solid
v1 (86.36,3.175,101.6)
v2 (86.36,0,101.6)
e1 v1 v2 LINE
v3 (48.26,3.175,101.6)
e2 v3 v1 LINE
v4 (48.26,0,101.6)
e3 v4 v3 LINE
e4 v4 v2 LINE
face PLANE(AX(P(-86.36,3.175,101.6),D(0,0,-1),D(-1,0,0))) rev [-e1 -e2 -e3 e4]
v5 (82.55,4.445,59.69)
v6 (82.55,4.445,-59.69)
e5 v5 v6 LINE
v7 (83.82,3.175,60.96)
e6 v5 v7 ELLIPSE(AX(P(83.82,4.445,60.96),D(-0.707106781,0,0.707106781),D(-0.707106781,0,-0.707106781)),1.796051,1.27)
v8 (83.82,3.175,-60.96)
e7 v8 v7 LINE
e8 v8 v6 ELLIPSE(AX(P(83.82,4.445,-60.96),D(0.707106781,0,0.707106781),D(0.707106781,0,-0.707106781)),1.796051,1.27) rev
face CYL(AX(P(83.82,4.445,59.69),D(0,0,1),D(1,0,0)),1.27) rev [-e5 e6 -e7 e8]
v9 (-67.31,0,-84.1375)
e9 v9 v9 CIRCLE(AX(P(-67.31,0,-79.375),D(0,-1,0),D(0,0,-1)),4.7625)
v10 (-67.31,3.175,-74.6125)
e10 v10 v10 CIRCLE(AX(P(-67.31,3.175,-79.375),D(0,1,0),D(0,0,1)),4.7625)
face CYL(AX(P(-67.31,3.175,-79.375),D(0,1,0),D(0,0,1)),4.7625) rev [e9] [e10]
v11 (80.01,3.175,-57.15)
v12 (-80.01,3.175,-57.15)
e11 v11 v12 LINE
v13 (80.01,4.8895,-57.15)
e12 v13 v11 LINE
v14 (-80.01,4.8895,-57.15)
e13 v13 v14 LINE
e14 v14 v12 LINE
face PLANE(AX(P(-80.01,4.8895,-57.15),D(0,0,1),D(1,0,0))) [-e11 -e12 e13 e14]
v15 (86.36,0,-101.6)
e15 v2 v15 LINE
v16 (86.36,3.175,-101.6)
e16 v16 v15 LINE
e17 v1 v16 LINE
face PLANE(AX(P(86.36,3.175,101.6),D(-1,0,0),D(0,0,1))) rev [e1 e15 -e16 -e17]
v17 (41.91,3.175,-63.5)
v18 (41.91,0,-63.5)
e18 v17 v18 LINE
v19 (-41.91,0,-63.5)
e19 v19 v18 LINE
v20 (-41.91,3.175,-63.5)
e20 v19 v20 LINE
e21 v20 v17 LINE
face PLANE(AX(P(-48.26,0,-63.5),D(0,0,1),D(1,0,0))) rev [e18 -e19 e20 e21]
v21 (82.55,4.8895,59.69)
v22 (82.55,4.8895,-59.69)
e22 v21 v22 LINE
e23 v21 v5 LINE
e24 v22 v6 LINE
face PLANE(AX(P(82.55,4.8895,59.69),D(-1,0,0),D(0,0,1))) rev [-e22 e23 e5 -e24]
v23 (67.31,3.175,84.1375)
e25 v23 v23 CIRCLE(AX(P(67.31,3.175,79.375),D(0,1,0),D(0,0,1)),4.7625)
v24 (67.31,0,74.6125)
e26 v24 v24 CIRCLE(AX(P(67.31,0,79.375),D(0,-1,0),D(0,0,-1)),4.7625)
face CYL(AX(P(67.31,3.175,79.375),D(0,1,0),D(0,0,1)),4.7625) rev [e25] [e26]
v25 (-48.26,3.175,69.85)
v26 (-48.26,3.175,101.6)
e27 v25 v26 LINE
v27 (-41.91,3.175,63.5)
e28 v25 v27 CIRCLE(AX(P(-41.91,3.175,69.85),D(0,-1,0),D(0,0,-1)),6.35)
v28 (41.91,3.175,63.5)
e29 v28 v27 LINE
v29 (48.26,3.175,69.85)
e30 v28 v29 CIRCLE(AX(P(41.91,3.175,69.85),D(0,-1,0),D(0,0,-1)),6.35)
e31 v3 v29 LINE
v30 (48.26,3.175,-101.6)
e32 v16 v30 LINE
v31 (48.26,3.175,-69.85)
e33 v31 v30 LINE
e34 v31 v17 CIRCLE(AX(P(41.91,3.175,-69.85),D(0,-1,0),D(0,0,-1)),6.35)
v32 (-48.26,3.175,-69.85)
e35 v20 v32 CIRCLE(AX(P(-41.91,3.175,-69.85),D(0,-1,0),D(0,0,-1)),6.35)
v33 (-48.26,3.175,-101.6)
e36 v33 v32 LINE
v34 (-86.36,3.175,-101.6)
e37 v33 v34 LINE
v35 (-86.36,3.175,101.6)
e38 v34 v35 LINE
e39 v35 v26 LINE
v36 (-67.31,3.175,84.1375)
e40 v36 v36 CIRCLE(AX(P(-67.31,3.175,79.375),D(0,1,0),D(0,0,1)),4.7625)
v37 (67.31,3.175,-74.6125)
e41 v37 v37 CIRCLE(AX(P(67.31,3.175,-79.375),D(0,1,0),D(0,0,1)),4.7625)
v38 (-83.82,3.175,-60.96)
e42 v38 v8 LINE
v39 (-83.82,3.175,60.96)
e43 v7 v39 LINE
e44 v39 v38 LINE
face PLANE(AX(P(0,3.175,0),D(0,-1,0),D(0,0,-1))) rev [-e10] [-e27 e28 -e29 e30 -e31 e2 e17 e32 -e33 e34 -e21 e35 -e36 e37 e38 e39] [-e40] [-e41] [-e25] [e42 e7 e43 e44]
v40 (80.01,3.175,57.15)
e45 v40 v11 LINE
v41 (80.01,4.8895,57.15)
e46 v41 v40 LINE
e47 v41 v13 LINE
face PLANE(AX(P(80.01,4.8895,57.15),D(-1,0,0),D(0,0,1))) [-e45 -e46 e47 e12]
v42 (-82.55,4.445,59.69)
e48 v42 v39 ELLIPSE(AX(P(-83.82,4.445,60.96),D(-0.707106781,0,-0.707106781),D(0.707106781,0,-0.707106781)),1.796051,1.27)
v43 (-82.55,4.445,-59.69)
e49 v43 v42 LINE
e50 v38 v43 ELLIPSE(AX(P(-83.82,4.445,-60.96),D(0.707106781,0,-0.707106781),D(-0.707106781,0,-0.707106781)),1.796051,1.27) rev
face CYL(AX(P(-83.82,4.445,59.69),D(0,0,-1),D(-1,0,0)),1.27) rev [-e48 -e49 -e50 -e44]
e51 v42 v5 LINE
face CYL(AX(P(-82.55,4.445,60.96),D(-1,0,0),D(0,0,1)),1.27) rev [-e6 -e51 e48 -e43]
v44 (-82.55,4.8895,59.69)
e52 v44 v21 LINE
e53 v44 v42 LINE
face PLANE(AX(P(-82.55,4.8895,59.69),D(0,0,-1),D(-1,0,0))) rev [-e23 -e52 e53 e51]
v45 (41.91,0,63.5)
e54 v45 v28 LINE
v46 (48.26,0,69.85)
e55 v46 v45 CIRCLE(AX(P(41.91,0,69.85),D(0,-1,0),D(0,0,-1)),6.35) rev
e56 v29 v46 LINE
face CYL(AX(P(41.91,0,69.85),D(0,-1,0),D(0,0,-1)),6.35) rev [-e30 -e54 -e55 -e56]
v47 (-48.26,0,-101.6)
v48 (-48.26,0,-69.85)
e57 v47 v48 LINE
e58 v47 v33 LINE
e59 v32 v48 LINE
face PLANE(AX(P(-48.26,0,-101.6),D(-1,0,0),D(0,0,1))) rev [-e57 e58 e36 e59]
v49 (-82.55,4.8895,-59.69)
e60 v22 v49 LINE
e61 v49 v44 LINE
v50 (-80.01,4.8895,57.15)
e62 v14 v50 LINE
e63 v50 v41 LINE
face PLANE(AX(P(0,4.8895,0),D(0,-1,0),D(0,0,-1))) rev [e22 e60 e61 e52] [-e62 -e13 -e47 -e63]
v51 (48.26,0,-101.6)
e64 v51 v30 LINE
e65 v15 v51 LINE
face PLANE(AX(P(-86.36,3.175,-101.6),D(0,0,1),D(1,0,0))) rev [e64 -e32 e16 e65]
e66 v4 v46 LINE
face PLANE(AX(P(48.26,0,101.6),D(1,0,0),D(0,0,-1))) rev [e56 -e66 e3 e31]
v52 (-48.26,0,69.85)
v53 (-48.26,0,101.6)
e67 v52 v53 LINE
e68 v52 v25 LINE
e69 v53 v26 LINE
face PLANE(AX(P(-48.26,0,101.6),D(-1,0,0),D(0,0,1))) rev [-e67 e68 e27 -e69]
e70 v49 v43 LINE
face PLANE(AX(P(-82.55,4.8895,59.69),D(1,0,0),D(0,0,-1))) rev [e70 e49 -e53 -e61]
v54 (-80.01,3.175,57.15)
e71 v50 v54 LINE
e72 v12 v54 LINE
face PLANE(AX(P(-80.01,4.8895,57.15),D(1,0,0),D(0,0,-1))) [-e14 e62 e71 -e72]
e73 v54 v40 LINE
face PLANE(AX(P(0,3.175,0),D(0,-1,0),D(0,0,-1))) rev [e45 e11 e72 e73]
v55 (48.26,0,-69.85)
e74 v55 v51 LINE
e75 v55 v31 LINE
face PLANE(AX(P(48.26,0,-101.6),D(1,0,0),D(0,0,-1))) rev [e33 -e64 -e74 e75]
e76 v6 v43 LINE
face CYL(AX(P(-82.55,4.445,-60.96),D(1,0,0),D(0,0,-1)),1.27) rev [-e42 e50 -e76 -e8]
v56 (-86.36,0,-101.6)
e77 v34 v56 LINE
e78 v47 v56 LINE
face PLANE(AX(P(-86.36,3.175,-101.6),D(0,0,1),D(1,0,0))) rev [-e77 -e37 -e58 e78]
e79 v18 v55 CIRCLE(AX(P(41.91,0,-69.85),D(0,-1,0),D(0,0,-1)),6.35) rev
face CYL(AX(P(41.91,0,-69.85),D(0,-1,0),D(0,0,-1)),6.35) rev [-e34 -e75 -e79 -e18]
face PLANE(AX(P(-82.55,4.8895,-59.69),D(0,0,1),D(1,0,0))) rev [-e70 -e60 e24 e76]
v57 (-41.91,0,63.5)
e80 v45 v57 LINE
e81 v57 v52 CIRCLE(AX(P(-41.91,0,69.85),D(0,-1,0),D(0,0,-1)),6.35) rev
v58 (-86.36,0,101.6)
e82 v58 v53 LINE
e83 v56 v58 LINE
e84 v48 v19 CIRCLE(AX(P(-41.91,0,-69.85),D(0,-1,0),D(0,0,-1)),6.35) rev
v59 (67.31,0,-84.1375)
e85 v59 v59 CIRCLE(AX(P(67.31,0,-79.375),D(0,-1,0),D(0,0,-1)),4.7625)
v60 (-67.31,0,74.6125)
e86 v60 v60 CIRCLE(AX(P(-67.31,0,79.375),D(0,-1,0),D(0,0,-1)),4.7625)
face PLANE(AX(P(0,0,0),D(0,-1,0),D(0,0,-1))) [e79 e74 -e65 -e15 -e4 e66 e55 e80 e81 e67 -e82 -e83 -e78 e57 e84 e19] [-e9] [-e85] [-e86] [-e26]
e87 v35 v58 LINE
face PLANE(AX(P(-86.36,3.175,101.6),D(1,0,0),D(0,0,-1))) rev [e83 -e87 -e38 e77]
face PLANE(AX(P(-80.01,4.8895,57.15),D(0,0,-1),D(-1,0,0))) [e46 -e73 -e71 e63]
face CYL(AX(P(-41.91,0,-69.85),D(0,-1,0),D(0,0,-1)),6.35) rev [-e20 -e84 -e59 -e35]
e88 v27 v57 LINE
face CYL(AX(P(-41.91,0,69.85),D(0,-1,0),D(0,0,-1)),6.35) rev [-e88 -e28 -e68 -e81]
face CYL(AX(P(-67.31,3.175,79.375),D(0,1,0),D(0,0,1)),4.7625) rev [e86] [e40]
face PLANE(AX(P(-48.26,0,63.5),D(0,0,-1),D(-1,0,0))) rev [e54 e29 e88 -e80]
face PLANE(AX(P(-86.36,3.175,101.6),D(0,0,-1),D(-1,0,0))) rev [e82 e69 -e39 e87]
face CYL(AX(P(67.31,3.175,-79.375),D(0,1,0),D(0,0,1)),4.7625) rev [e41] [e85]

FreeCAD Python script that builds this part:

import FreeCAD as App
import Part
import Sketcher
from FreeCAD import Vector
Q = App.Units.Quantity


def edges_at(feature, points):
    """Names of the edges that pass closest to the given points."""
    edges = feature.Shape.Edges
    near = lambda p: min(range(len(edges)), key=lambda i: edges[i].distToShape(Part.Vertex(*p))[0])
    return sorted({f"Edge{near(p) + 1}" for p in points})


def add_polygon(sketch, points):
    """Adds a closed chain of lines whose ends are joined by coincident constraints."""
    first, n = sketch.GeometryCount, len(points)
    for a, b in zip(points, points[1:] + points[:1]):
        sketch.addGeometry(Part.LineSegment(App.Vector(*a, 0), App.Vector(*b, 0)), False)
    for i in range(n):
        sketch.addConstraint(Sketcher.Constraint("Coincident", first + i, 2, first + (i + 1) % n, 1))

doc = App.newDocument("Part")
body = doc.addObject("PartDesign::Body", "Body")

# Sketch on XZ plane
sketch1 = body.newObject("Sketcher::SketchObject", "Sketch")
sketch1.AttachmentSupport = (doc.getObject("XZ_Plane"), [""])
sketch1.MapMode = "FlatFace"
add_polygon(sketch1, [(-86, -102), (-86, 102), (86, 102), (86, -102)])  # lines 0-3
sketch1.addConstraint([
    Sketcher.Constraint("Vertical", 0),
    Sketcher.Constraint("Horizontal", 1),
    Sketcher.Constraint("Vertical", 2),
    Sketcher.Constraint("Horizontal", 3),
    Sketcher.Constraint("Symmetric", 0, 2, 2, 2, -1, 1),
    Sketcher.Constraint("DistanceY", 0, 1, 0, 2, Q("8 in")),
    Sketcher.Constraint("DistanceX", 1, 1, 1, 2, Q("6.8 in")),
])
pad1 = body.newObject("PartDesign::Pad", "Pad")
pad1.Profile = sketch1
pad1.Length = Q("0.125 in")
pad1.Reversed = True

# Sketch on XZ plane
sketch2 = body.newObject("Sketcher::SketchObject", "Sketch001")
sketch2.AttachmentSupport = (doc.getObject("XZ_Plane"), [""])
sketch2.MapMode = "FlatFace"
sketch2.AttachmentOffset = App.Placement(Vector(0, 0, -0.125 * 25.4), App.Rotation())
add_polygon(sketch2, [(-48, -102), (-48, -64), (48, -64), (48, -102)])  # lines 0-3
add_polygon(sketch2, [(-48, 64), (-48, 102), (48, 102), (48, 64)])  # lines 4-7
sketch2.addConstraint([
    Sketcher.Constraint("Vertical", 0),
    Sketcher.Constraint("Horizontal", 1),
    Sketcher.Constraint("Vertical", 2),
    Sketcher.Constraint("Horizontal", 3),
    Sketcher.Constraint("Vertical", 4),
    Sketcher.Constraint("Horizontal", 5),
    Sketcher.Constraint("Vertical", 6),
    Sketcher.Constraint("Horizontal", 7),
    Sketcher.Constraint("Symmetric", 2, 2, 4, 2, -1, 1),
    Sketcher.Constraint("Symmetric", 0, 2, 6, 2, -1, 1),
    Sketcher.Constraint("Vertical", 3, 2, 4, 2),
    Sketcher.Constraint("DistanceX", 1, 1, 1, 2, Q("3.8 in")),
    Sketcher.Constraint("DistanceY", 0, 1, 0, 2, Q("1.5 in")),
    Sketcher.Constraint("DistanceY", 2, 2, -1, 1, Q("4 in")),
])
pocket1 = body.newObject("PartDesign::Pocket", "Pocket")
pocket1.Profile = sketch2
pocket1.Type = "ThroughAll"
pocket1.Reversed = True
doc.recompute()

fillet = body.newObject("PartDesign::Fillet", "Fillet")
fillet.Base = (pocket1, edges_at(pocket1, [
    (-48.26, 1.587, -63.5),
    (48.26, 1.587, -63.5),
    (-48.26, 1.587, 63.5),
    (48.26, 1.587, 63.5),
]))
fillet.Radius = Q("0.25 in")

# Sketch on XZ plane
sketch3 = body.newObject("Sketcher::SketchObject", "Sketch002")
sketch3.AttachmentSupport = (doc.getObject("XZ_Plane"), [""])
sketch3.MapMode = "FlatFace"
sketch3.AttachmentOffset = App.Placement(Vector(0, 0, -0.125 * 25.4), App.Rotation())
add_polygon(sketch3, [(-83, -60), (-83, 60), (83, 60), (83, -60)])  # lines 0-3
add_polygon(sketch3, [(80, 57), (-80, 57), (-80, -57), (80, -57)])  # lines 4-7
sketch3.addConstraint([
    Sketcher.Constraint("Vertical", 0),
    Sketcher.Constraint("Horizontal", 1),
    Sketcher.Constraint("Vertical", 2),
    Sketcher.Constraint("Horizontal", 3),
    Sketcher.Constraint("Horizontal", 4),
    Sketcher.Constraint("Vertical", 5),
    Sketcher.Constraint("Horizontal", 6),
    Sketcher.Constraint("Vertical", 7),
    Sketcher.Constraint("Symmetric", 0, 2, 2, 2, -1, 1),
    Sketcher.Constraint("Symmetric", 4, 2, 6, 2, -1, 1),
    Sketcher.Constraint("DistanceX", 1, 1, 1, 2, Q("6.5 in")),
    Sketcher.Constraint("DistanceX", 4, 2, 4, 1, Q("6.3 in")),
    Sketcher.Constraint("DistanceY", 0, 1, 0, 2, Q("4.7 in")),
    Sketcher.Constraint("DistanceY", 5, 2, 5, 1, Q("4.5 in")),
])
pad2 = body.newObject("PartDesign::Pad", "Pad001")
pad2.Profile = sketch3
pad2.Length = Q("0.0675 in")
pad2.Reversed = True
doc.recompute()

fillet2 = body.newObject("PartDesign::Fillet", "Fillet001")
fillet2.Base = (pad2, edges_at(pad2, [
    (82.55, 3.175, 0),
    (0, 3.175, -59.69),
    (-82.55, 3.175, 0),
    (0, 3.175, 59.69),
]))
fillet2.Radius = Q("0.05 in")

# Sketch on XZ plane
sketch4 = body.newObject("Sketcher::SketchObject", "Sketch003")
sketch4.AttachmentSupport = (doc.getObject("XZ_Plane"), [""])
sketch4.MapMode = "FlatFace"
sketch4.AttachmentOffset = App.Placement(Vector(0, 0, -0.125 * 25.4), App.Rotation())
sketch4.addGeometry(Part.Circle(Vector(-67.3, 79.4, 0), Vector(0, 0, 1), 4.8), False)
sketch4.addConstraint([
    Sketcher.Constraint("Diameter", 0, Q("0.375 in")),
    Sketcher.Constraint("DistanceX", 0, 3, -1, 1, Q("2.65 in")),
    Sketcher.Constraint("DistanceY", -1, 1, 0, 3, Q("3.125 in")),
])
doc.recompute()
hole = body.newObject("PartDesign::Hole", "Hole")
hole.Profile = sketch4
hole.ThreadType = "None"
hole.Diameter = Q("0.375 in")
hole.DepthType = "ThroughAll"
hole.Reversed = True
doc.recompute()

mirrored = body.newObject("PartDesign::Mirrored", "Mirrored")
mirrored.Originals = [hole]
mirrored.MirrorPlane = (doc.getObject("XY_Plane"), [""])
body.Tip = mirrored
doc.recompute()

mirrored2 = body.newObject("PartDesign::Mirrored", "Mirrored001")
mirrored2.Originals = [hole]
mirrored2.MirrorPlane = (doc.getObject("YZ_Plane"), [""])
body.Tip = mirrored2

# Sketch on XZ plane
sketch5 = body.newObject("Sketcher::SketchObject", "Sketch004")
sketch5.AttachmentSupport = (doc.getObject("XZ_Plane"), [""])
sketch5.MapMode = "FlatFace"
sketch5.AttachmentOffset = App.Placement(Vector(0, 0, -0.125 * 25.4), App.Rotation())
sketch5.addGeometry(Part.Circle(Vector(67.3, -79.4, 0), Vector(0, 0, 1), 4.8), False)
sketch5.addConstraint([
    Sketcher.Constraint("Diameter", 0, Q("0.375 in")),
    Sketcher.Constraint("DistanceX", -1, 1, 0, 3, Q("2.65 in")),
    Sketcher.Constraint("DistanceY", 0, 3, -1, 1, Q("3.125 in")),
])
doc.recompute()
hole2 = body.newObject("PartDesign::Hole", "Hole001")
hole2.Profile = sketch5
hole2.ThreadType = "None"
hole2.Diameter = Q("0.375 in")
hole2.DepthType = "ThroughAll"
hole2.Reversed = True

doc.recompute()
